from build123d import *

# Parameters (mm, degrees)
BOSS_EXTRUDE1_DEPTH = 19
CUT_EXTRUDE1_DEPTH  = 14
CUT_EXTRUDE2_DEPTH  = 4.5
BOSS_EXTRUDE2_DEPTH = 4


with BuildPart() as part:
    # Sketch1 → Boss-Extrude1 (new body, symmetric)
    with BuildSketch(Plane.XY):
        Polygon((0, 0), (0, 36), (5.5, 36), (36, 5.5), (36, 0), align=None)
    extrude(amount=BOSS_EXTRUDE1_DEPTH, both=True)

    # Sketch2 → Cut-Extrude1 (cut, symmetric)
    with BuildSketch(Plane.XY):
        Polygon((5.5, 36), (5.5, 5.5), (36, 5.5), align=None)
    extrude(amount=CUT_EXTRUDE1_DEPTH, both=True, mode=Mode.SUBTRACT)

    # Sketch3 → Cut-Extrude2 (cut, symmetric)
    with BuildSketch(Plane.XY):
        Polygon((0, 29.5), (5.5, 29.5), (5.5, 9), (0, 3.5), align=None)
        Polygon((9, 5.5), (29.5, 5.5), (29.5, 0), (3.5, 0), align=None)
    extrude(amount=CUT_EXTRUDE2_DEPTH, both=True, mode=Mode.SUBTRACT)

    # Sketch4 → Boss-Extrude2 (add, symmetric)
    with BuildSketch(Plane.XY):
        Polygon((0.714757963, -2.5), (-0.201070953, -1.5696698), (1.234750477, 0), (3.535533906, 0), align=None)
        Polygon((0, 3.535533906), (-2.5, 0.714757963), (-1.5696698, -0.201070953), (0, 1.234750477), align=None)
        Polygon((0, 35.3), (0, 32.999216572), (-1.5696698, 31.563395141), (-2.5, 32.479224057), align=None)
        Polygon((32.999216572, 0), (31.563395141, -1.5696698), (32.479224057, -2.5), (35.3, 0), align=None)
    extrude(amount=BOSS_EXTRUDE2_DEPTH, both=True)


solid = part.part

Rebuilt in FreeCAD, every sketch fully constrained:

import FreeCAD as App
import Part
import Sketcher


def add_polygon(sketch, points):
    """Adds a closed chain of lines whose ends are joined by coincident constraints."""
    first, n = sketch.GeometryCount, len(points)
    for a, b in zip(points, points[1:] + points[:1]):
        sketch.addGeometry(Part.LineSegment(App.Vector(*a, 0), App.Vector(*b, 0)), False)
    for i in range(n):
        sketch.addConstraint(Sketcher.Constraint("Coincident", first + i, 2, first + (i + 1) % n, 1))

doc = App.newDocument("Part")
body = doc.addObject("PartDesign::Body", "Body")

# Sketch on XY plane
sketch1 = body.newObject("Sketcher::SketchObject", "Sketch")
sketch1.AttachmentSupport = (doc.getObject("XY_Plane"), [""])
sketch1.MapMode = "FlatFace"
add_polygon(sketch1, [(0, 36), (0, 0), (36, 0), (36, 6), (6, 36)])  # lines 0-4
sketch1.addConstraint([
    Sketcher.Constraint("Vertical", 0),
    Sketcher.Constraint("Horizontal", 1),
    Sketcher.Constraint("Vertical", 2),
    Sketcher.Constraint("Horizontal", 4),
    Sketcher.Constraint("Coincident", 0, 2, -1, 1),
    Sketcher.Constraint("Equal", 1, 0),
    Sketcher.Constraint("Equal", 4, 2),
    Sketcher.Constraint("DistanceX", 1, 1, 1, 2, 36.0),
    Sketcher.Constraint("DistanceX", 4, 2, 4, 1, 5.5),
])
pad1 = body.newObject("PartDesign::Pad", "Pad")
pad1.Profile = sketch1
pad1.Length = 38
pad1.Midplane = True

# Sketch on XY plane
sketch2 = body.newObject("Sketcher::SketchObject", "Sketch001")
sketch2.AttachmentSupport = (doc.getObject("XY_Plane"), [""])
sketch2.MapMode = "FlatFace"
add_polygon(sketch2, [(6, 36), (6, 6), (36, 6)])  # lines 0-2
sketch2.addConstraint([
    Sketcher.Constraint("Vertical", 0),
    Sketcher.Constraint("Horizontal", 1),
    Sketcher.Constraint("Equal", 1, 0),
    Sketcher.Constraint("DistanceX", 1, 1, 1, 2, 30.5),
    Sketcher.Constraint("DistanceX", -1, 1, 1, 2, 36.0),
    Sketcher.Constraint("DistanceY", -1, 1, 2, 2, 36.0),
])
pocket1 = body.newObject("PartDesign::Pocket", "Pocket")
pocket1.Profile = sketch2
pocket1.Length = 28
pocket1.Midplane = True

# Sketch on XY plane
sketch3 = body.newObject("Sketcher::SketchObject", "Sketch002")
sketch3.AttachmentSupport = (doc.getObject("XY_Plane"), [""])
sketch3.MapMode = "FlatFace"
add_polygon(sketch3, [(6, 30), (0, 30), (0, 4), (6, 9)])  # lines 0-3
add_polygon(sketch3, [(30, 6), (9, 6), (4, 0), (30, 0)])  # lines 4-7
sketch3.addConstraint([
    Sketcher.Constraint("Horizontal", 0),
    Sketcher.Constraint("Vertical", 1),
    Sketcher.Constraint("Vertical", 3),
    Sketcher.Constraint("Horizontal", 4),
    Sketcher.Constraint("Horizontal", 6),
    Sketcher.Constraint("Vertical", 7),
    Sketcher.Constraint("PointOnObject", 0, 2, -2),
    Sketcher.Constraint("PointOnObject", 5, 2, -1),
    Sketcher.Constraint("Parallel", 2, 5),
    Sketcher.Constraint("Equal", 6, 1),
    Sketcher.Constraint("Equal", 4, 3),
    Sketcher.Constraint("Equal", 0, 7),
    Sketcher.Constraint("DistanceX", 6, 1, 6, 2, 26.0),
    Sketcher.Constraint("DistanceX", 0, 2, 0, 1, 5.5),
    Sketcher.Constraint("DistanceY", -1, 1, 2, 2, 9.0),
    Sketcher.Constraint("DistanceX", -1, 1, 4, 2, 9.0),
])
pocket2 = body.newObject("PartDesign::Pocket", "Pocket001")
pocket2.Profile = sketch3
pocket2.Length = 9
pocket2.Midplane = True

# Sketch on XY plane
sketch4 = body.newObject("Sketcher::SketchObject", "Sketch003")
sketch4.AttachmentSupport = (doc.getObject("XY_Plane"), [""])
sketch4.MapMode = "FlatFace"
add_polygon(sketch4, [(-0.2, -1.6), (0.7, -2.5), (3.5, 0), (1.2, 0)])  # lines 0-3
add_polygon(sketch4, [(0, 3.5), (-2.5, 0.7), (-1.6, -0.2), (0, 1.2)])  # lines 4-7
add_polygon(sketch4, [(0, 33), (0, 35.3), (-2.5, 32.5), (-1.6, 31.6)])  # lines 8-11
add_polygon(sketch4, [(33, 0), (31.6, -1.6), (32.5, -2.5), (35.3, 0)])  # lines 12-15
sketch4.addConstraint([
    Sketcher.Constraint("Horizontal", 2),
    Sketcher.Constraint("Vertical", 7),
    Sketcher.Constraint("Vertical", 8),
    Sketcher.Constraint("Horizontal", 15),
    Sketcher.Constraint("PointOnObject", 1, 2, -1),
    Sketcher.Constraint("PointOnObject", 6, 2, -2),
    Sketcher.Constraint("PointOnObject", 8, 2, -2),
    Sketcher.Constraint("PointOnObject", 14, 2, -1),
    Sketcher.Constraint("Parallel", 4, 9),
    Sketcher.Constraint("Parallel", 5, 10),
    Sketcher.Constraint("Parallel", 6, 11),
    Sketcher.Constraint("Parallel", 3, 12),
    Sketcher.Constraint("Parallel", 0, 13),
    Sketcher.Constraint("Parallel", 1, 14),
    Sketcher.Constraint("Horizontal", 3, 2, 12, 2),
    Sketcher.Constraint("Horizontal", 0, 2, 13, 2),
    Sketcher.Constraint("Vertical", 4, 2, 9, 2),
    Sketcher.Constraint("Vertical", 5, 2, 10, 2),
    Sketcher.Constraint("Equal", 15, 7),
    Sketcher.Constraint("Equal", 1, 4),
    Sketcher.Constraint("Equal", 0, 5),
    Sketcher.Constraint("Equal", 3, 6),
    Sketcher.Constraint("DistanceY", 0, 2, -1, 1, 2.5),
    Sketcher.Constraint("DistanceX", 4, 2, -1, 1, 2.5),
    Sketcher.Constraint("DistanceY", -1, 1, 8, 2, 35.3),
    Sketcher.Constraint("DistanceX", -1, 1, 14, 2, 35.3),
    Sketcher.Constraint("DistanceX", 5, 2, 3, 2, 1.368599),
    Sketcher.Constraint("DistanceY", 3, 2, 5, 2, 1.368599),
    Sketcher.Constraint("Distance", 0, 1.305472),
    Sketcher.Constraint("Distance", 3, 2.12731),
    Sketcher.Constraint("DistanceX", 2, 2, 2, 1, 2.300783),
    Sketcher.Constraint("DistanceX", -1, 1, 2, 2, 1.23475),
])
pad2 = body.newObject("PartDesign::Pad", "Pad001")
pad2.Profile = sketch4
pad2.Length = 8
pad2.Midplane = True

doc.recompute()
